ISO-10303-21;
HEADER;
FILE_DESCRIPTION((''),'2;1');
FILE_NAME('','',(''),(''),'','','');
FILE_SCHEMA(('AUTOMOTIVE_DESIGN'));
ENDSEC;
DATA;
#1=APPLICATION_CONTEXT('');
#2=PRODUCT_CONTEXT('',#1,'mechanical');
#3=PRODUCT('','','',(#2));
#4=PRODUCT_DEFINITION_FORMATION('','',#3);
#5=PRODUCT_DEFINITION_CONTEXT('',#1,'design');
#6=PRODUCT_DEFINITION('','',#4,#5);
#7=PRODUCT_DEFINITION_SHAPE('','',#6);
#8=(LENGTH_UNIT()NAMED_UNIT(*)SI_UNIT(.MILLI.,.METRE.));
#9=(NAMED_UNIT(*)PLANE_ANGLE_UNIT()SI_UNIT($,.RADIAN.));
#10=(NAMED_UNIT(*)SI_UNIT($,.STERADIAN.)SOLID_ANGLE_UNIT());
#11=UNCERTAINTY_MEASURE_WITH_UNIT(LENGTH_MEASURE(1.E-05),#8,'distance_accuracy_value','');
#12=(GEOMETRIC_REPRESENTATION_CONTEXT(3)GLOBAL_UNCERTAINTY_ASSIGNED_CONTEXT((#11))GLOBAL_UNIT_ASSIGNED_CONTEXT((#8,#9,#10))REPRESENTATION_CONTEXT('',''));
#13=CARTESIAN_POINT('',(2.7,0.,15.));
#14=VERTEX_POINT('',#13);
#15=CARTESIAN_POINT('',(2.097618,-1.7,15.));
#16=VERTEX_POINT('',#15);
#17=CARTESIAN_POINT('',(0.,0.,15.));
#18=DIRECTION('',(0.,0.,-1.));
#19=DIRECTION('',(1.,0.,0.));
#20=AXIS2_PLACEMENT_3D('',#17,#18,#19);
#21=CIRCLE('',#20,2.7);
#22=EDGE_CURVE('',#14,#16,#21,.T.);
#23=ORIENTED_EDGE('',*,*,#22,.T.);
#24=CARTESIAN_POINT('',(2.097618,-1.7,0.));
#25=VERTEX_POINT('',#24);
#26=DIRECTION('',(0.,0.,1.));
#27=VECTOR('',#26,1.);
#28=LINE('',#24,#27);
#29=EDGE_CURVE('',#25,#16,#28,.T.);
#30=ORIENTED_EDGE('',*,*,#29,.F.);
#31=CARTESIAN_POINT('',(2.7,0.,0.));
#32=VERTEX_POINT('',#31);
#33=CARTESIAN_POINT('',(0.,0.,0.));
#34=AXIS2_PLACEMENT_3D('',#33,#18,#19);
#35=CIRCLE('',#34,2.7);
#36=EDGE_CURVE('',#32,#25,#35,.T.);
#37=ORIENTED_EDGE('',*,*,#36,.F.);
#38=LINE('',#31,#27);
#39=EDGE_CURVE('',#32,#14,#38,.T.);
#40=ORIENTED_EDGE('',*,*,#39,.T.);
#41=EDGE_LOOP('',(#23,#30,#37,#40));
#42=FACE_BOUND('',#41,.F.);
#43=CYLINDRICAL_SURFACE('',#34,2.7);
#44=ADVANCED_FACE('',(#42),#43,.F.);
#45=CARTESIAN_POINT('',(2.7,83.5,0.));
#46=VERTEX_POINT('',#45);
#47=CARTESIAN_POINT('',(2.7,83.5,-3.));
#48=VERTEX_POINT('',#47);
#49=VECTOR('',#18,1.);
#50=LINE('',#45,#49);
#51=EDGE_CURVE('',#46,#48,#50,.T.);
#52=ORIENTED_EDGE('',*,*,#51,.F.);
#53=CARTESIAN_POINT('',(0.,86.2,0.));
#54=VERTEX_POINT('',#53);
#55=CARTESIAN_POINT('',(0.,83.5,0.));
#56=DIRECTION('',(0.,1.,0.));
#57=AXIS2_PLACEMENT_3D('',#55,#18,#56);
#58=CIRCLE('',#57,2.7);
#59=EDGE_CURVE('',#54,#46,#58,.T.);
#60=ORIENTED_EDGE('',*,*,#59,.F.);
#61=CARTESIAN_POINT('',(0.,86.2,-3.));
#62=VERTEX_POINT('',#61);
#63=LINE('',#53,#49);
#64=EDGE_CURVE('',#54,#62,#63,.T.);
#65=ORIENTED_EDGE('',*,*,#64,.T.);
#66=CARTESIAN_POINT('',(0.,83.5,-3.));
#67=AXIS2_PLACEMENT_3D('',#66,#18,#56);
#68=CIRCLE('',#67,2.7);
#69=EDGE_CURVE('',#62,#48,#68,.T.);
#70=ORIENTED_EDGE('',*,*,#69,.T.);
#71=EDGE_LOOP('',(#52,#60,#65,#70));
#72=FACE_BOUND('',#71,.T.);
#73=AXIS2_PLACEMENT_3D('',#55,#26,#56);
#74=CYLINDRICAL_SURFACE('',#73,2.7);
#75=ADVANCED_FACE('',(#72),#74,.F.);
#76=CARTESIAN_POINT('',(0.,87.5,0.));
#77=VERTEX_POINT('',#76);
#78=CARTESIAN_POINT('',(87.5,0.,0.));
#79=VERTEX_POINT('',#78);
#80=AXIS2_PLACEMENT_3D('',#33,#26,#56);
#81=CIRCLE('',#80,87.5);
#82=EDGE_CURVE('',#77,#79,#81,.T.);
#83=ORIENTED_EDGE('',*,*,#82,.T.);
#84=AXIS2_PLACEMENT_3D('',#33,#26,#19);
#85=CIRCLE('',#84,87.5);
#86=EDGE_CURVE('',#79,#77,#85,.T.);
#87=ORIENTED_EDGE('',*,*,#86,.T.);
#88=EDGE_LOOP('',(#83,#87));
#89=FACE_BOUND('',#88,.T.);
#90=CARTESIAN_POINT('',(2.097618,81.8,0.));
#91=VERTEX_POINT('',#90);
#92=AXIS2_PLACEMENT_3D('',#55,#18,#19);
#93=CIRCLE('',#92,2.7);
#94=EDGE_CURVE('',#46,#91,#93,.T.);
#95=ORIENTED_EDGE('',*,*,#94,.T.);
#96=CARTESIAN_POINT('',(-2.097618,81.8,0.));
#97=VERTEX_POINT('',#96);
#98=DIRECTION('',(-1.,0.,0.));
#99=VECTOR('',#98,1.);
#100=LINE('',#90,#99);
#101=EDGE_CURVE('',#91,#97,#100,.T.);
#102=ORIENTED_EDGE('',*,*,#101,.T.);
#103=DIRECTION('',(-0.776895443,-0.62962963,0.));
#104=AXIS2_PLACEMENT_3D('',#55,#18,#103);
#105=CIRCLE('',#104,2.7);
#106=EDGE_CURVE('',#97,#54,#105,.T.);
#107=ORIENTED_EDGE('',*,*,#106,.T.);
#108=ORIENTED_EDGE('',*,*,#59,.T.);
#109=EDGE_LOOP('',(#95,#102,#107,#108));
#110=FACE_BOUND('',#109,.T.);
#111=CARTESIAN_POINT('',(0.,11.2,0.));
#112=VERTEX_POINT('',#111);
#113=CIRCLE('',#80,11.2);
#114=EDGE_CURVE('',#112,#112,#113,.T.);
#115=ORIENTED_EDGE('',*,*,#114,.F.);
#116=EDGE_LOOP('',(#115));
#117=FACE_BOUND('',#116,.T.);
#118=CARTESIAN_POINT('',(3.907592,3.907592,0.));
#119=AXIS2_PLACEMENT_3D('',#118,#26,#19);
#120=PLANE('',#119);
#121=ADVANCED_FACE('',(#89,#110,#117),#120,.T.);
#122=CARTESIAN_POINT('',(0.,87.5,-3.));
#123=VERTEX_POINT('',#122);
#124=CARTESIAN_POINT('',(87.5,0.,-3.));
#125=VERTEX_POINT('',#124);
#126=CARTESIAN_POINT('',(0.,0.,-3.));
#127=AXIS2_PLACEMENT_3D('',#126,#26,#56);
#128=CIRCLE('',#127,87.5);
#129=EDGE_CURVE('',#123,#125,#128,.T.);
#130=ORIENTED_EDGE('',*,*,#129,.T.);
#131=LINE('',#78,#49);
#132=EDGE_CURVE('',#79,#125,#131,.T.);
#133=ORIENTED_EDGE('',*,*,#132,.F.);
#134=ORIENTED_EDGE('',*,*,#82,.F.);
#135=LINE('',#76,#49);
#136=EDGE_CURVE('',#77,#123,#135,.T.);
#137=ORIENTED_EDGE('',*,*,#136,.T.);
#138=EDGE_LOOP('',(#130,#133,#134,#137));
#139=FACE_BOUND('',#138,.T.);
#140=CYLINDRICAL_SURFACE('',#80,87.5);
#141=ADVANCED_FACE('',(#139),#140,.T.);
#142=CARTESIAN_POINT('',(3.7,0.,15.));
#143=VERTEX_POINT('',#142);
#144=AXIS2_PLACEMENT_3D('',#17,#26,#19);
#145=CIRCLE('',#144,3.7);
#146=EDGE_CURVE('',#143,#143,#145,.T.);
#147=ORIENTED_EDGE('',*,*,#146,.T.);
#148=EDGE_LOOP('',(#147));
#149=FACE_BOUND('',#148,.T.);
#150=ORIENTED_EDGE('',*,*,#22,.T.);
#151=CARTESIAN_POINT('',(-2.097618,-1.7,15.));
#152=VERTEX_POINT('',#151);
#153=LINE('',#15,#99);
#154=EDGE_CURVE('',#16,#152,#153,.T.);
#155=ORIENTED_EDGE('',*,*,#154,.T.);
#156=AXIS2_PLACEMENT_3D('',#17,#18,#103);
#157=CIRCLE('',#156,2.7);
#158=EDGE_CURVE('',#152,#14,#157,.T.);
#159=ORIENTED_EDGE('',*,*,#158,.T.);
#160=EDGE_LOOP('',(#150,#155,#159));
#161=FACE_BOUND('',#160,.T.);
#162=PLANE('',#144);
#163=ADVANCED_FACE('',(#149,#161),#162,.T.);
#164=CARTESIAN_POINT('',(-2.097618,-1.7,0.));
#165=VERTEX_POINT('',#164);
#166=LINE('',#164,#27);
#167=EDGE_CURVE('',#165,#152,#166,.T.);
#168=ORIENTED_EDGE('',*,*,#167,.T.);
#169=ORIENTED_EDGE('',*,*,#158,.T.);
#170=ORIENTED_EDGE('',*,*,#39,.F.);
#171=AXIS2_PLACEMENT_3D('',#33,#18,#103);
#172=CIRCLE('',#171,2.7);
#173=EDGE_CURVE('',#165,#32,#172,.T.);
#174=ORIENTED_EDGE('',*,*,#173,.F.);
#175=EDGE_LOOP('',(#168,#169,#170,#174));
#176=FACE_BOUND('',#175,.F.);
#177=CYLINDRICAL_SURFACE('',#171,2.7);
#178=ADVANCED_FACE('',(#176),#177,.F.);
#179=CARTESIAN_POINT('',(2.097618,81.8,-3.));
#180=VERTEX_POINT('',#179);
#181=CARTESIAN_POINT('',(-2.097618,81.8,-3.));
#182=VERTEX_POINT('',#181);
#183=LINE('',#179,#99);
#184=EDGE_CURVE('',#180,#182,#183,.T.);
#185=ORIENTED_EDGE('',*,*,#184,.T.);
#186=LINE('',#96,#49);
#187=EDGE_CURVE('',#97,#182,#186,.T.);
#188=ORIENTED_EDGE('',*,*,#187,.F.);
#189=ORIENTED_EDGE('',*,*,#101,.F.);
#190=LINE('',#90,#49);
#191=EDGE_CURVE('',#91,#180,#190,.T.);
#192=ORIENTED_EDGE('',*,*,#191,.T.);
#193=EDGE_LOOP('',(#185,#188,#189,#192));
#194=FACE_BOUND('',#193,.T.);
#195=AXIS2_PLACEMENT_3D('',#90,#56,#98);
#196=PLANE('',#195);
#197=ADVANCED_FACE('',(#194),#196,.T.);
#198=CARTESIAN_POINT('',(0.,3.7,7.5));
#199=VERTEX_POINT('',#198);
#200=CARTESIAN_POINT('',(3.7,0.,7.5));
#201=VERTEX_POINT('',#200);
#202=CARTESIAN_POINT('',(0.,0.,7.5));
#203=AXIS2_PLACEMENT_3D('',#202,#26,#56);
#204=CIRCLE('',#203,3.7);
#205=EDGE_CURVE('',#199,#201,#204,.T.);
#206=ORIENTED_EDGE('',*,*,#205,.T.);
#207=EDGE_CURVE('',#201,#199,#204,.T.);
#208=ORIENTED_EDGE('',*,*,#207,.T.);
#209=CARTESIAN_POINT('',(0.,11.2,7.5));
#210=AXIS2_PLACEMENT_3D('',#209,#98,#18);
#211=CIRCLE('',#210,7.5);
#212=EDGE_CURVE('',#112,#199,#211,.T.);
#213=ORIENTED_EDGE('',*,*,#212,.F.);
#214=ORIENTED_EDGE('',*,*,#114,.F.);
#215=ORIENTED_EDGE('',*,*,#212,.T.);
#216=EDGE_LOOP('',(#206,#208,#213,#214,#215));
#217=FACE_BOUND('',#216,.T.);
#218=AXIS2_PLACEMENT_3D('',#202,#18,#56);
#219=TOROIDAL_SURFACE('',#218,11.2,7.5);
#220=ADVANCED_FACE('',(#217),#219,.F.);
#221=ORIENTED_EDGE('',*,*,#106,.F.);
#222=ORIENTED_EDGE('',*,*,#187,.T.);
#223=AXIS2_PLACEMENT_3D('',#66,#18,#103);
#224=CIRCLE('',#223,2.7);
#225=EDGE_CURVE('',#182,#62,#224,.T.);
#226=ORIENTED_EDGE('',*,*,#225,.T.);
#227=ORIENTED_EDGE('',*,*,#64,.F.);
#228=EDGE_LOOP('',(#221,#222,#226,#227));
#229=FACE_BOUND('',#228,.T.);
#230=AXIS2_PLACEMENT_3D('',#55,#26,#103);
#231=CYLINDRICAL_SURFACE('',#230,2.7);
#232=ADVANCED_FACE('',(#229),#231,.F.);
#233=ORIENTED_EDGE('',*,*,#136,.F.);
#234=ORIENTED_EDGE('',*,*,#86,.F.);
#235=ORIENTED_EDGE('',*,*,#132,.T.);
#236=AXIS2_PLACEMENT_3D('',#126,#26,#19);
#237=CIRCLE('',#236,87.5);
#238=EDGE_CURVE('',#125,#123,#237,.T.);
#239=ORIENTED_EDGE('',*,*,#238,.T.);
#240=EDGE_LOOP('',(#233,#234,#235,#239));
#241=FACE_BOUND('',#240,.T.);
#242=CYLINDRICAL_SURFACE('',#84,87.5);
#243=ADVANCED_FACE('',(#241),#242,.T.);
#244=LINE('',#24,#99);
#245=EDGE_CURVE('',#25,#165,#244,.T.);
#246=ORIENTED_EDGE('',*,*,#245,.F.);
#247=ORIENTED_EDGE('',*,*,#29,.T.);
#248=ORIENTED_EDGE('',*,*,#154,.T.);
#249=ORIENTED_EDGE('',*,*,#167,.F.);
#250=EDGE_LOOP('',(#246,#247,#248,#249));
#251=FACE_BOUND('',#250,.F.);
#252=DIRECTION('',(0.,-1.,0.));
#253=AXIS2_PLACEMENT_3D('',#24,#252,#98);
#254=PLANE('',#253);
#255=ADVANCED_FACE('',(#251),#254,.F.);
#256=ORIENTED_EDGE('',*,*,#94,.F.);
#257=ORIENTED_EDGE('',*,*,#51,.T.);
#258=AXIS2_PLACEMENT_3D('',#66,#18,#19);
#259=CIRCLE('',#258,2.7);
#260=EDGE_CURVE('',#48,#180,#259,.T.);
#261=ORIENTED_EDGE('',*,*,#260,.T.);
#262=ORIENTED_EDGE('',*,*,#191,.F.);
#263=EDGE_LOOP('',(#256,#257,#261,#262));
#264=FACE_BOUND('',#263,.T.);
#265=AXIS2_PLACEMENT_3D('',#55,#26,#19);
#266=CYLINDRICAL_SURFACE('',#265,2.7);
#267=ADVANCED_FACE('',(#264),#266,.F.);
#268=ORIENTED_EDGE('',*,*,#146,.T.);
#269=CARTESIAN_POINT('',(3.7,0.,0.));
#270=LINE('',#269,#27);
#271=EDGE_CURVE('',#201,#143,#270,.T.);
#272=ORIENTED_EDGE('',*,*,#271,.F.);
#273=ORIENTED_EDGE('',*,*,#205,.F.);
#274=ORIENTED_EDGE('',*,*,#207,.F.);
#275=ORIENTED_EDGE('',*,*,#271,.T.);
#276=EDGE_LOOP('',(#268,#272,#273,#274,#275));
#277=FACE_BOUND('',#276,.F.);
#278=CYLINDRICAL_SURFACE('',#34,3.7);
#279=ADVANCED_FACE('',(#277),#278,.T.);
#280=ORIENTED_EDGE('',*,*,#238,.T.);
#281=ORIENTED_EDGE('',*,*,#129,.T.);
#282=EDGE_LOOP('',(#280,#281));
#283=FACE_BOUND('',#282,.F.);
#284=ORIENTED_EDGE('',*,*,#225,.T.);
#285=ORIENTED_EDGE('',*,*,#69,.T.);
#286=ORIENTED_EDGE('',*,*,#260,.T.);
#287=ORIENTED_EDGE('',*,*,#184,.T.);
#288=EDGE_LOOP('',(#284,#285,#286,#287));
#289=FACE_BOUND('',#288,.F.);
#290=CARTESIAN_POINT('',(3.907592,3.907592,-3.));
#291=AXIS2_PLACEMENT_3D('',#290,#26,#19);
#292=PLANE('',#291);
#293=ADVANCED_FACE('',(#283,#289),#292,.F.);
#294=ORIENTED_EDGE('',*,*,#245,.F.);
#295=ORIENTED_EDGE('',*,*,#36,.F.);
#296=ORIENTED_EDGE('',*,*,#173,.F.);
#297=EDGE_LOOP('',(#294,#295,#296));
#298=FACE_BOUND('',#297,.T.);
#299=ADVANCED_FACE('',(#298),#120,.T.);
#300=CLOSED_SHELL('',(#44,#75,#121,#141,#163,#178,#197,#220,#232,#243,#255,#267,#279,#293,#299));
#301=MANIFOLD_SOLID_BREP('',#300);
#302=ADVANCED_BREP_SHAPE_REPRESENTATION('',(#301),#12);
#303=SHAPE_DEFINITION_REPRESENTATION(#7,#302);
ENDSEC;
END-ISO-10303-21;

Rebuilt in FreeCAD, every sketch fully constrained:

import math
import FreeCAD as App
import Part
import Sketcher
from FreeCAD import Vector

doc = App.newDocument("Part")
body = doc.addObject("PartDesign::Body", "Body")

# Sketch on XY plane
sketch1 = doc.addObject("Sketcher::SketchObject", "Sketch")
body.addObject(sketch1)
sketch1.AttachmentSupport = (doc.XY_Plane, [""])
sketch1.MapMode = "FlatFace"
sketch1.addGeometry([
    Part.Circle(Vector(0, 0, 0), Vector(0, 0, 1), 3.7),
    Part.ArcOfCircle(Part.Circle(Vector(0, 0, 0), Vector(0, 0, 1), 2.7), math.radians(-39), math.radians(0)),
    Part.LineSegment(Vector(2.1, -1.7, 0), Vector(-2.1, -1.7, 0)),
    Part.ArcOfCircle(Part.Circle(Vector(0, 0, 0), Vector(0, 0, 1), 2.7), math.radians(0), math.radians(219)),
], False)
sketch1.addConstraint([
    Sketcher.Constraint("Coincident", 1, 1, 2, 1),
    Sketcher.Constraint("Coincident", 2, 2, 3, 2),
    Sketcher.Constraint("Tangent", 3, 1, 1, 2),
    Sketcher.Constraint("Horizontal", 2),
    Sketcher.Constraint("Coincident", 0, 3, -1, 1),
    Sketcher.Constraint("Coincident", 1, 3, -1, 1),
    Sketcher.Constraint("Equal", 1, 3),
    Sketcher.Constraint("PointOnObject", 3, 1, -1),
    Sketcher.Constraint("Diameter", 0, 7.4),
    Sketcher.Constraint("Radius", 1, 2.7),
    Sketcher.Constraint("DistanceY", 1, 1, -1, 1, 1.7),
])
pad1 = doc.addObject("PartDesign::Pad", "Pad")
body.addObject(pad1)
pad1.Profile = sketch1
pad1.Length = 15

# Sketch on XY plane
sketch2 = doc.addObject("Sketcher::SketchObject", "Sketch001")
body.addObject(sketch2)
sketch2.AttachmentSupport = (doc.XY_Plane, [""])
sketch2.MapMode = "FlatFace"
sketch2.addGeometry([
    Part.ArcOfCircle(Part.Circle(Vector(0, 0, 0), Vector(0, 0, 1), 87.5), math.radians(90), math.radians(360)),  # 0
    Part.ArcOfCircle(Part.Circle(Vector(0, 0, 0), Vector(0, 0, 1), 87.5), math.radians(0), math.radians(90)),  # 1
    Part.ArcOfCircle(Part.Circle(Vector(0, 83.5, 0), Vector(0, 0, 1), 2.7), math.radians(90), math.radians(219)),  # 2
    Part.ArcOfCircle(Part.Circle(Vector(0, 83.5, 0), Vector(0, 0, 1), 2.7), math.radians(0), math.radians(90)),  # 3
    Part.ArcOfCircle(Part.Circle(Vector(0, 83.5, 0), Vector(0, 0, 1), 2.7), math.radians(-39), math.radians(0)),  # 4
    Part.LineSegment(Vector(2.1, 81.8, 0), Vector(-2.1, 81.8, 0)),  # 5
], False)
sketch2.addConstraint([
    Sketcher.Constraint("Tangent", 0, 1, 1, 2),
    Sketcher.Constraint("Coincident", 1, 1, 0, 2),
    Sketcher.Constraint("Tangent", 2, 1, 3, 2),
    Sketcher.Constraint("Tangent", 3, 1, 4, 2),
    Sketcher.Constraint("Coincident", 4, 1, 5, 1),
    Sketcher.Constraint("Coincident", 5, 2, 2, 2),
    Sketcher.Constraint("Horizontal", 5),
    Sketcher.Constraint("Coincident", 0, 3, -1, 1),
    Sketcher.Constraint("Coincident", 4, 3, 2, 3),
    Sketcher.Constraint("PointOnObject", 2, 3, -2),
    Sketcher.Constraint("PointOnObject", 0, 1, -2),
    Sketcher.Constraint("PointOnObject", 1, 1, -1),
    Sketcher.Constraint("PointOnObject", 2, 1, -2),
    Sketcher.Constraint("Horizontal", 4, 3, 3, 1),
    Sketcher.Constraint("Radius", 0, 87.5),
    Sketcher.Constraint("Radius", 2, 2.7),
    Sketcher.Constraint("DistanceY", 2, 3, 0, 1, 4.0),
    Sketcher.Constraint("DistanceY", -1, 1, 4, 1, 81.8),
])
pad2 = doc.addObject("PartDesign::Pad", "Pad001")
body.addObject(pad2)
pad2.Profile = sketch2
pad2.Length = 3
pad2.Reversed = True

# Sketch on YZ plane
sketch3 = doc.addObject("Sketcher::SketchObject", "Sketch002")
body.addObject(sketch3)
sketch3.AttachmentSupport = (doc.YZ_Plane, [""])
sketch3.MapMode = "FlatFace"
sketch3.addGeometry([
    Part.LineSegment(Vector(4, 8, 0), Vector(4, 0, 0)),
    Part.LineSegment(Vector(4, 0, 0), Vector(11, 0, 0)),
    Part.ArcOfCircle(Part.Circle(Vector(11, 8, 0), Vector(0, 0, 1), 8), math.radians(180), math.radians(270)),
], False)
sketch3.addConstraint([
    Sketcher.Constraint("Coincident", 0, 2, 1, 1),
    Sketcher.Constraint("Tangent", 1, 2, 2, 2),
    Sketcher.Constraint("Tangent", 2, 1, 0, 1),
    Sketcher.Constraint("Vertical", 0),
    Sketcher.Constraint("Horizontal", 1),
    Sketcher.Constraint("PointOnObject", 0, 2, -1),
    Sketcher.Constraint("Radius", 2, 7.5),
    Sketcher.Constraint("DistanceX", -1, 1, 2, 3, 11.2),
])
revolution = doc.addObject("PartDesign::Revolution", "Revolution")
body.addObject(revolution)
revolution.Profile = sketch3
revolution.ReferenceAxis = (sketch3, ["V_Axis"])
revolution.Angle = 360

doc.recompute()
